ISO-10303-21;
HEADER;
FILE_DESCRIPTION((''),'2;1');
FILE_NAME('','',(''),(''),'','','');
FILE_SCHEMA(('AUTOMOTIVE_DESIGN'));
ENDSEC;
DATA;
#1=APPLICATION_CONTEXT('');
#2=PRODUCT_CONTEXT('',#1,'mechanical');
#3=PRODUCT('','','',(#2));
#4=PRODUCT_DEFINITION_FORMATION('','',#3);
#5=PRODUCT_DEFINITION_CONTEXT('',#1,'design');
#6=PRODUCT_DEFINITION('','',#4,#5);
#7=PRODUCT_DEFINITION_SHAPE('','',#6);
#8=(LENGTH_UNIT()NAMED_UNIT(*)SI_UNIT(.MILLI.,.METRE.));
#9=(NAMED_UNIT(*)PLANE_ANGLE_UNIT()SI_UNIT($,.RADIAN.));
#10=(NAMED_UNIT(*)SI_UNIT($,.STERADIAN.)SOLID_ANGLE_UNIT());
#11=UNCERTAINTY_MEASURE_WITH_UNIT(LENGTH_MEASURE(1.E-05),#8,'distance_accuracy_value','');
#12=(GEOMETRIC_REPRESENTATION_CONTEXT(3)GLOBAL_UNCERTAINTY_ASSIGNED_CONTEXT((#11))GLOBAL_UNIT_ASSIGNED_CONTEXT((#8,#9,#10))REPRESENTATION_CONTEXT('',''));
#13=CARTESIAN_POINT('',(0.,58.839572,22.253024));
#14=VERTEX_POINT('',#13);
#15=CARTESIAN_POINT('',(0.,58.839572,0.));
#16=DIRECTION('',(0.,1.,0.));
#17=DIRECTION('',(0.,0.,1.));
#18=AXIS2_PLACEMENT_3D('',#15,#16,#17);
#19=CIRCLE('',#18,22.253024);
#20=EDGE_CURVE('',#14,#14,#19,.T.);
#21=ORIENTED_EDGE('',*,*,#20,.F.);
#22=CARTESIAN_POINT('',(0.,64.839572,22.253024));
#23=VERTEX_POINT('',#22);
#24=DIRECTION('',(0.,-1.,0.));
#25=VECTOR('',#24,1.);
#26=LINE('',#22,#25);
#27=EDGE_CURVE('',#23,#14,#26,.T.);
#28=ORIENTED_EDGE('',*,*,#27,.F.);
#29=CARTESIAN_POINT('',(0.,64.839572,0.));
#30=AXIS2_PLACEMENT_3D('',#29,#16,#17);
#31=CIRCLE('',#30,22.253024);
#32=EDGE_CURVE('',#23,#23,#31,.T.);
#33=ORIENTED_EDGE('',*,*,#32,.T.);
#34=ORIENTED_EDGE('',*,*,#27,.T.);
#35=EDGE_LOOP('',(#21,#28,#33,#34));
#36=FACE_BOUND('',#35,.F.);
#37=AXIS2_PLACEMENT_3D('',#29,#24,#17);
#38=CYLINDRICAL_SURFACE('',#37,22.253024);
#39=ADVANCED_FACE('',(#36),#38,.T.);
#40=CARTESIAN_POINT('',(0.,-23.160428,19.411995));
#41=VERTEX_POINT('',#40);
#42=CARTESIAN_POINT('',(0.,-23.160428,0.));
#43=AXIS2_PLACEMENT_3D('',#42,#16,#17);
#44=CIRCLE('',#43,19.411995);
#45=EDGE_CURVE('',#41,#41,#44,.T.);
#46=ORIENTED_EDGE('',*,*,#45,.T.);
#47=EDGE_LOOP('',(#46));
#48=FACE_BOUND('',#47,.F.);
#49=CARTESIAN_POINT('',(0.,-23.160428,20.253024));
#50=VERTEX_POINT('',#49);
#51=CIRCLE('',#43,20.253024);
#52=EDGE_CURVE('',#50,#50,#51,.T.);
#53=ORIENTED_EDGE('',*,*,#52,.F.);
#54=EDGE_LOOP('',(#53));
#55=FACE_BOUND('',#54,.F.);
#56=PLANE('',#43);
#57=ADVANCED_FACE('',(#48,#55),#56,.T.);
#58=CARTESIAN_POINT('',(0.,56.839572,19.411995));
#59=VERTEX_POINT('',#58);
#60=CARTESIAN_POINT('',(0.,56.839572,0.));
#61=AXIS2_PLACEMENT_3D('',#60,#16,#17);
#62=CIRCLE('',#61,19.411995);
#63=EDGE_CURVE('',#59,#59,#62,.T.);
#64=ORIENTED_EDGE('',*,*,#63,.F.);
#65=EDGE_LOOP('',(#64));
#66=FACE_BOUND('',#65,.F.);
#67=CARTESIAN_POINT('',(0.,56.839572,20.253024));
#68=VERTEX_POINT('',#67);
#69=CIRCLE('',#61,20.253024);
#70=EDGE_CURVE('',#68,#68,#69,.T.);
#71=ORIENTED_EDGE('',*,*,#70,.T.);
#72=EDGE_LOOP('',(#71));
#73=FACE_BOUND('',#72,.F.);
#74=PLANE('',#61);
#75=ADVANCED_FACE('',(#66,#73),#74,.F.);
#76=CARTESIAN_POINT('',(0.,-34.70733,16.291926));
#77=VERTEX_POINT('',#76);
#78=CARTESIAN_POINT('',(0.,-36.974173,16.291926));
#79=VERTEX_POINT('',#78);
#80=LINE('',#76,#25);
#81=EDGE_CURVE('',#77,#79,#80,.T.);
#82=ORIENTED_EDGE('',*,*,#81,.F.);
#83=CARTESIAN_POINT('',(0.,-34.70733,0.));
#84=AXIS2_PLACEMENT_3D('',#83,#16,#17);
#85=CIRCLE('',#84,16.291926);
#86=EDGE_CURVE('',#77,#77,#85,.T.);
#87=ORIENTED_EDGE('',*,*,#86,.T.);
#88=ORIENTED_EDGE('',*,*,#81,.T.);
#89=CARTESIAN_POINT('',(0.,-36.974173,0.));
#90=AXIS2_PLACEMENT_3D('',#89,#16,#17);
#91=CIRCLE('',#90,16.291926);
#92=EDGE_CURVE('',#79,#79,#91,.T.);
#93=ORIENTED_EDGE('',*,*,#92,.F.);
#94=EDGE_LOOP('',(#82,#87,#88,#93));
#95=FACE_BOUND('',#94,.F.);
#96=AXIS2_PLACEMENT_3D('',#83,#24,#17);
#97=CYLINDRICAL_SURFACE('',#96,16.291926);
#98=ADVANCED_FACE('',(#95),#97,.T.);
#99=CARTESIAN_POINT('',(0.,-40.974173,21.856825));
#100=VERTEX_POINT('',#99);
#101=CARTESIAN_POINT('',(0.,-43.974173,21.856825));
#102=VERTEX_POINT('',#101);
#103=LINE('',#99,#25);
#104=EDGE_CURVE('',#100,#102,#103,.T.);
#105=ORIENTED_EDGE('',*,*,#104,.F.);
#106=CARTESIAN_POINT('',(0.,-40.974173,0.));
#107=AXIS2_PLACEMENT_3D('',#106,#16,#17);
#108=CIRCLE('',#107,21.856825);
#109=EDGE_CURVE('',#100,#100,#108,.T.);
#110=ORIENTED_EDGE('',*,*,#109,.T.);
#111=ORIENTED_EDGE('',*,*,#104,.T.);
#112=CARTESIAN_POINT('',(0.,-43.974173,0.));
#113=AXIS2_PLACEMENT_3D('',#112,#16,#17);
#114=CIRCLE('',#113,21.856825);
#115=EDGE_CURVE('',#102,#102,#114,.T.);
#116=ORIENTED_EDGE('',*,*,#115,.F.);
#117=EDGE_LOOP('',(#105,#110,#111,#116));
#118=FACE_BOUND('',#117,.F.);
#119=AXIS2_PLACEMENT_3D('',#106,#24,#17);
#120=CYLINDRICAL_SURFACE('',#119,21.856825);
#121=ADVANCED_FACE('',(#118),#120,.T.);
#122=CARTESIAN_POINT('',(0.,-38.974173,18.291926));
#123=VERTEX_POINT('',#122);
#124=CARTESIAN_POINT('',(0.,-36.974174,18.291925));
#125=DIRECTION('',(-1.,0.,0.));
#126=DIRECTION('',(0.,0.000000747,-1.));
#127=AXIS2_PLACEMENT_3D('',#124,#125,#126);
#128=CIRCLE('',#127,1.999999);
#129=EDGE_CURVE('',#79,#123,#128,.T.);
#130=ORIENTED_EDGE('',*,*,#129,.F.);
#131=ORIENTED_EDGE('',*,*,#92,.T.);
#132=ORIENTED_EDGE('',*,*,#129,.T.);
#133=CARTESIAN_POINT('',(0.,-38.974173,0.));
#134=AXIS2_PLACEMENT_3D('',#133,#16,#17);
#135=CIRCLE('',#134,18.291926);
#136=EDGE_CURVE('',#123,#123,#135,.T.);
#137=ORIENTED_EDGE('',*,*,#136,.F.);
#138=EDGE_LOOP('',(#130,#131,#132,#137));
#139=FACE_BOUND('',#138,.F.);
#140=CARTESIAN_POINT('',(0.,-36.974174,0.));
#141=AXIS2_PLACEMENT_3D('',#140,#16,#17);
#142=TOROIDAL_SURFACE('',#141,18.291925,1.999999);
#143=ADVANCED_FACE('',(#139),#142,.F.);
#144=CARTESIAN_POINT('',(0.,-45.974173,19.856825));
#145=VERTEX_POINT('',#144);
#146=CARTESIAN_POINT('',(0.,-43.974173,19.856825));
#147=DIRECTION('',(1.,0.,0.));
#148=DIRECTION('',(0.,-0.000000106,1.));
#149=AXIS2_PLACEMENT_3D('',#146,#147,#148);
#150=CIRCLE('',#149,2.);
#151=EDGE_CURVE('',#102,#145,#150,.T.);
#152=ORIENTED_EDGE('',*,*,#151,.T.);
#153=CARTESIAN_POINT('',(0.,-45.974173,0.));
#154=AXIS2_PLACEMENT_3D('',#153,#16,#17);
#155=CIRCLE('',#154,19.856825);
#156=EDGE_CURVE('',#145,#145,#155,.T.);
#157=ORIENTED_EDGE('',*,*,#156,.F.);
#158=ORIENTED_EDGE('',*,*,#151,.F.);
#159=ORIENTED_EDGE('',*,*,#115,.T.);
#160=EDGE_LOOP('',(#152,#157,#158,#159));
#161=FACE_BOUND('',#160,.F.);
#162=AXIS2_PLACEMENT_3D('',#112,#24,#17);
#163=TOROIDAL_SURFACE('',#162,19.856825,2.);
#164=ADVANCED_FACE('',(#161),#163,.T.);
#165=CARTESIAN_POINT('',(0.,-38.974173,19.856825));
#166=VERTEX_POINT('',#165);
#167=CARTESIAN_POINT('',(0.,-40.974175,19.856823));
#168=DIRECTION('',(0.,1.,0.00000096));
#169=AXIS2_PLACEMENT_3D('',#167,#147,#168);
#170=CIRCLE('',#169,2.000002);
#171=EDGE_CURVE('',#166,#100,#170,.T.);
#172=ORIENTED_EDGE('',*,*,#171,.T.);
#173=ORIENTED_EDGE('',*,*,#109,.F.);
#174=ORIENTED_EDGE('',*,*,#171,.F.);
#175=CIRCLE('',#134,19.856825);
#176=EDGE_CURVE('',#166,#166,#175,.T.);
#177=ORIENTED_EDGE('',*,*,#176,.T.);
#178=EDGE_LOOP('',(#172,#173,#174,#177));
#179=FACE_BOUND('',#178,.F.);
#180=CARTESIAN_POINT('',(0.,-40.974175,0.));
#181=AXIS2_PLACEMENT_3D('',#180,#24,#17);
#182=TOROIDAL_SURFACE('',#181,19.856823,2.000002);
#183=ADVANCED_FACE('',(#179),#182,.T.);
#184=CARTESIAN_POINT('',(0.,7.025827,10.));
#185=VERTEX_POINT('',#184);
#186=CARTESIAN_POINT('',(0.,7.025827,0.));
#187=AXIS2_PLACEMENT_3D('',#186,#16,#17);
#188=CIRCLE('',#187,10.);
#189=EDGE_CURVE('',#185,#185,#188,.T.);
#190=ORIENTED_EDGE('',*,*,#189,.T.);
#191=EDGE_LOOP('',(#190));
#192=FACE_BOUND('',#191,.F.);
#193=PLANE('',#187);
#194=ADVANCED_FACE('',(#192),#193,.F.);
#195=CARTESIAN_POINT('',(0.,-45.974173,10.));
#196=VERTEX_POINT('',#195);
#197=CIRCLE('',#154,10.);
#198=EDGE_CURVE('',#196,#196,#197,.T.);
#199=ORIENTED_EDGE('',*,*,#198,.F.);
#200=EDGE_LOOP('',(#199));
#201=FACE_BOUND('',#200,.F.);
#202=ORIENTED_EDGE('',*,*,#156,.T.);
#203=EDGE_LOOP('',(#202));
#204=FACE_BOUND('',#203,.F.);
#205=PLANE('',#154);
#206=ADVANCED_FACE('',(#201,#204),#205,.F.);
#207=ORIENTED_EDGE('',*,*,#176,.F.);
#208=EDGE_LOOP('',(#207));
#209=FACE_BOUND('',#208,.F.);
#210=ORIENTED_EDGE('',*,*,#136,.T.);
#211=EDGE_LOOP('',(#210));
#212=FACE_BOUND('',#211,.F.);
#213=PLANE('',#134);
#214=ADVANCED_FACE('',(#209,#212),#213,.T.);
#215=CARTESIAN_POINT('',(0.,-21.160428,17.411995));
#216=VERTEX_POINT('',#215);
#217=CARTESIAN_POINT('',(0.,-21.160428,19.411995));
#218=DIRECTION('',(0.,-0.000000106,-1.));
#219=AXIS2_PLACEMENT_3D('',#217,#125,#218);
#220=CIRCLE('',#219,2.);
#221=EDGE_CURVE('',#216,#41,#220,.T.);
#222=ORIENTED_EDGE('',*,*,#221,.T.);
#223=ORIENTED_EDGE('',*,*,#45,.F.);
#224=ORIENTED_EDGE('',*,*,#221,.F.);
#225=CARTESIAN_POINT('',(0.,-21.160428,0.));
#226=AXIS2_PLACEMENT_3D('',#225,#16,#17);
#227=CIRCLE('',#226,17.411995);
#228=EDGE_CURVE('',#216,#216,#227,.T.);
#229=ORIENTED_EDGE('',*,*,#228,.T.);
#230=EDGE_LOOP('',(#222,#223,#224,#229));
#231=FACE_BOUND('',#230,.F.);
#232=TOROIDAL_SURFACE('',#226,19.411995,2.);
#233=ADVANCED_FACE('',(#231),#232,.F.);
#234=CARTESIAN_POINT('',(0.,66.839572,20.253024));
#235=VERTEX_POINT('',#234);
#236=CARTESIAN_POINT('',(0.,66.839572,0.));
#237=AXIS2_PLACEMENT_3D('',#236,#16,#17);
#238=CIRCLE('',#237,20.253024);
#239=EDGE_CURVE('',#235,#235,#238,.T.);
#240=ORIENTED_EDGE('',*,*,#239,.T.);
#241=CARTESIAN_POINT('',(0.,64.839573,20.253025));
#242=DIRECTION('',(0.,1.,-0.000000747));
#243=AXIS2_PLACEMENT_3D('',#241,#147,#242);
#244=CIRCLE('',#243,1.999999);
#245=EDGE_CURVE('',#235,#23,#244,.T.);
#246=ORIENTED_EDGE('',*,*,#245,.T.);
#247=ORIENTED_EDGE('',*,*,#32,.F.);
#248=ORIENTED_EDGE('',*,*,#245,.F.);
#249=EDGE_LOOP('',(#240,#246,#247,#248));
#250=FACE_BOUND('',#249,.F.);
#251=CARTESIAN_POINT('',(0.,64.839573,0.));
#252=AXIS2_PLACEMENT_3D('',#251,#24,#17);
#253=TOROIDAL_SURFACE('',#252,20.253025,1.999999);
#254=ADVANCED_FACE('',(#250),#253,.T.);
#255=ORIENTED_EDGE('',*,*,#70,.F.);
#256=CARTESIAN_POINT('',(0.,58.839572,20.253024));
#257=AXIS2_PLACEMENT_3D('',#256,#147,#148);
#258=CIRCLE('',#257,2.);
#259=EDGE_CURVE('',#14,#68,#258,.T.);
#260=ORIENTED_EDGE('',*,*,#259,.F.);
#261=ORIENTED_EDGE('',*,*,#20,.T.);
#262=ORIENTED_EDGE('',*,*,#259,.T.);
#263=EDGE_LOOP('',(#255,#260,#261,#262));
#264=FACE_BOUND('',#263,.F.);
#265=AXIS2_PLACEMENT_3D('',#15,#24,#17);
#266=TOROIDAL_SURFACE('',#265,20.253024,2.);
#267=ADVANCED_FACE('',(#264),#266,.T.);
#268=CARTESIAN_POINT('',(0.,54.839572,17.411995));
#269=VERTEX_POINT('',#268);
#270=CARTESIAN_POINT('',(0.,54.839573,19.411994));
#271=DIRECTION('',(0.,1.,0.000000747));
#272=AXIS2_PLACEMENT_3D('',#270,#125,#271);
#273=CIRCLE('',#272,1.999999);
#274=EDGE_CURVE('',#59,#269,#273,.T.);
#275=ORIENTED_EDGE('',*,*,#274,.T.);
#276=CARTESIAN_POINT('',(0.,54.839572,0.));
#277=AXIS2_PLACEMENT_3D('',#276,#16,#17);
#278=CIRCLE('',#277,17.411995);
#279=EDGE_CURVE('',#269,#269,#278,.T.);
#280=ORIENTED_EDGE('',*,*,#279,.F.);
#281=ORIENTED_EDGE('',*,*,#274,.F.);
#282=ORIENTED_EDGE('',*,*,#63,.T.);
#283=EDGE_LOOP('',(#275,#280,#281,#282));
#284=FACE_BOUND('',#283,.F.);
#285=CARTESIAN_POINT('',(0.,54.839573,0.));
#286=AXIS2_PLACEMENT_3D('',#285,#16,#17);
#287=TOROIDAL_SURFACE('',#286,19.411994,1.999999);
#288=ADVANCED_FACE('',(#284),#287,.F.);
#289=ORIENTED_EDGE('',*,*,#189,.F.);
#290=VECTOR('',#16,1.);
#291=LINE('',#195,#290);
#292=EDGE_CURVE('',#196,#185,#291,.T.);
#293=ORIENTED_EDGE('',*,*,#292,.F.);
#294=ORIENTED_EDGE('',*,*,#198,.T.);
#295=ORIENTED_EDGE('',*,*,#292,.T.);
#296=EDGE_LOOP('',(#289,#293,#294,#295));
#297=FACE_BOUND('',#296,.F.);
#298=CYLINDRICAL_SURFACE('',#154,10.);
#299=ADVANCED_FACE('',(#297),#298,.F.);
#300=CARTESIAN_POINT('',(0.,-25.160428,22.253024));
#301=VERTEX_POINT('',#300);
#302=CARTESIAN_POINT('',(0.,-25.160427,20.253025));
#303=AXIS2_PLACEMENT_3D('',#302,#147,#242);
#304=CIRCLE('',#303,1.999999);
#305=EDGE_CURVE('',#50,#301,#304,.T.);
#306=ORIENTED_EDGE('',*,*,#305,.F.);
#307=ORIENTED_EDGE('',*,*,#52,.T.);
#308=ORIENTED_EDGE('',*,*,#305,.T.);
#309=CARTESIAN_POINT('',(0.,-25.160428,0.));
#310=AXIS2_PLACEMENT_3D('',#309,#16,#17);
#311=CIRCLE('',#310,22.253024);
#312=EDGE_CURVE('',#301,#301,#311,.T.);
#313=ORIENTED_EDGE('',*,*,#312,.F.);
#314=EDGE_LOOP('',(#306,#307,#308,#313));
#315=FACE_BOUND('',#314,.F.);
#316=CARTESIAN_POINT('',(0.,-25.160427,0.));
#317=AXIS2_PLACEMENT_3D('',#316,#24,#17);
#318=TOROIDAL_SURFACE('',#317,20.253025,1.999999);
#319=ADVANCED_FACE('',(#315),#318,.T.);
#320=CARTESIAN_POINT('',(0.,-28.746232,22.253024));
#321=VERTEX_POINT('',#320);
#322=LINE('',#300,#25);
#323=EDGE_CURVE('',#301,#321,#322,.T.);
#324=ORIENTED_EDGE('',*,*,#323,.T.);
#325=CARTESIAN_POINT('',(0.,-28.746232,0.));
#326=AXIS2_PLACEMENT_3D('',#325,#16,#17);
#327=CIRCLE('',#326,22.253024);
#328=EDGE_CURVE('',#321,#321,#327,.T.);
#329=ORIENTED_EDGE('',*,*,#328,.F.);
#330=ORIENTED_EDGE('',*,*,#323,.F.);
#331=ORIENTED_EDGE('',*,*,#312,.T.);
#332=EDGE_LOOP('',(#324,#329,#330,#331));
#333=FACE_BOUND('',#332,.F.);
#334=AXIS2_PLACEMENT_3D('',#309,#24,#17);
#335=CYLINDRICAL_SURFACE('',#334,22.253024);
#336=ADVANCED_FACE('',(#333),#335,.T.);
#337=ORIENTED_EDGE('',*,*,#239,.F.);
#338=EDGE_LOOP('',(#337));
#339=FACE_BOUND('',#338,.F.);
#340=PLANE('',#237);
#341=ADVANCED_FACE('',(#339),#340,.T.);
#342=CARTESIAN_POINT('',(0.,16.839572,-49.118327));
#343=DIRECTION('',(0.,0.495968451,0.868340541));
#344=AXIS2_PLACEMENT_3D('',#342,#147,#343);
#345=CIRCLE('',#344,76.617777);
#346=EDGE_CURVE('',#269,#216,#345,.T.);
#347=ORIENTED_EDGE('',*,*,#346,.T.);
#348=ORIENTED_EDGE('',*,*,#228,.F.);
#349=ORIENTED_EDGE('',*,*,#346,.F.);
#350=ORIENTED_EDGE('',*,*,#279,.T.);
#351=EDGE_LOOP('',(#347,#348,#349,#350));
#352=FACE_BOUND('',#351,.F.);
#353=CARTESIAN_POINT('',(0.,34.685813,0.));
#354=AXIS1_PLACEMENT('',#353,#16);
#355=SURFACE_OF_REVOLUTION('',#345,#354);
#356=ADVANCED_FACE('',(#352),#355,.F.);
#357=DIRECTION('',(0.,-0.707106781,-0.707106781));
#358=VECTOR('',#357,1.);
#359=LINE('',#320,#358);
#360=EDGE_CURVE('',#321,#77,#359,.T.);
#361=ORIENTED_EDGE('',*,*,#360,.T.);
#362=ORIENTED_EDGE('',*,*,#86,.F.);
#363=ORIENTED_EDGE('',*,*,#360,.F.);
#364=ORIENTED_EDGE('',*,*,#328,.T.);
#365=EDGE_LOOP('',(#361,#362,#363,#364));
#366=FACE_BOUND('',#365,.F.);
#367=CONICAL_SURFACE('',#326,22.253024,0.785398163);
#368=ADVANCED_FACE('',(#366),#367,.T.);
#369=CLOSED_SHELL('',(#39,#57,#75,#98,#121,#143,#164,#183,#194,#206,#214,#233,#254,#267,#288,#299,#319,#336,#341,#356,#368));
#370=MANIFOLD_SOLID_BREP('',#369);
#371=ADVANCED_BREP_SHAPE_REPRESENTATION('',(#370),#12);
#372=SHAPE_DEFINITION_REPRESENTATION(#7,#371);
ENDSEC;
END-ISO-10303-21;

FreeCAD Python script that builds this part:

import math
import FreeCAD as App
import Part
import Sketcher
Q = App.Units.Quantity

doc = App.newDocument("Part")
params = doc.addObject("Spreadsheet::Sheet", "Params")
for row, (alias, value) in enumerate([
    ("sketch1_radius", "1.999999 mm"),
    ("sketch1_width", "53 mm"),
    ("sketch1_width2", "6 mm"),
    ("sketch1_width3", "3 mm"),
    ("sketch1_height", "10 mm"),
    ("revolution_angle", "360 deg"),
], start=1):
    params.set(f"A{row}", alias)
    params.set(f"B{row}", "=" + value)
    params.setAlias(f"B{row}", alias)

body = doc.addObject("PartDesign::Body", "Body")

# Sketch on YZ plane
sketch1 = doc.addObject("Sketcher::SketchObject", "Sketch")
body.addObject(sketch1)
sketch1.AttachmentSupport = (doc.YZ_Plane, [""])
sketch1.MapMode = "FlatFace"
sketch1.addGeometry([
    Part.LineSegment(App.Vector(-46, 19.9, 0), App.Vector(-46, 10, 0)),  # 0
    Part.LineSegment(App.Vector(-46, 10, 0), App.Vector(7, 10, 0)),  # 1
    Part.LineSegment(App.Vector(7, 10, 0), App.Vector(7, 0, 0)),  # 2
    Part.LineSegment(App.Vector(7, 0, 0), App.Vector(66.8, 0, 0)),  # 3
    Part.LineSegment(App.Vector(66.8, 0, 0), App.Vector(66.8, 20.3, 0)),  # 4
    Part.ArcOfCircle(Part.Circle(App.Vector(64.8, 20.3, 0), App.Vector(0, 0, 1), 2), math.radians(0), math.radians(90)),  # 5
    Part.LineSegment(App.Vector(64.8, 22.3, 0), App.Vector(58.8, 22.3, 0)),  # 6
    Part.ArcOfCircle(Part.Circle(App.Vector(58.8, 20.3, 0), App.Vector(0, 0, 1), 2), math.radians(90), math.radians(180)),  # 7
    Part.LineSegment(App.Vector(56.8, 20.3, 0), App.Vector(56.8, 19.4, 0)),  # 8
    Part.ArcOfCircle(Part.Circle(App.Vector(54.8, 19.4, 0), App.Vector(0, 0, 1), 2), math.radians(-90), math.radians(0)),  # 9
    Part.ArcOfCircle(Part.Circle(App.Vector(16.8, -49.1, 0), App.Vector(0, 0, 1), 76.6), math.radians(60), math.radians(120)),  # 10
    Part.ArcOfCircle(Part.Circle(App.Vector(-21.2, 19.4, 0), App.Vector(0, 0, 1), 2), math.radians(-180), math.radians(-90)),  # 11
    Part.LineSegment(App.Vector(-23.2, 19.4, 0), App.Vector(-23.2, 20.3, 0)),  # 12
    Part.ArcOfCircle(Part.Circle(App.Vector(-25.2, 20.3, 0), App.Vector(0, 0, 1), 2), math.radians(0), math.radians(90)),  # 13
    Part.LineSegment(App.Vector(-25.2, 22.3, 0), App.Vector(-28.7, 22.3, 0)),  # 14
    Part.LineSegment(App.Vector(-28.7, 22.3, 0), App.Vector(-34.7, 16.3, 0)),  # 15
    Part.LineSegment(App.Vector(-34.7, 16.3, 0), App.Vector(-37, 16.3, 0)),  # 16
    Part.ArcOfCircle(Part.Circle(App.Vector(-37, 18.3, 0), App.Vector(0, 0, 1), 2), math.radians(180), math.radians(270)),  # 17
    Part.LineSegment(App.Vector(-39, 18.3, 0), App.Vector(-39, 19.9, 0)),  # 18
    Part.ArcOfCircle(Part.Circle(App.Vector(-41, 19.9, 0), App.Vector(0, 0, 1), 2), math.radians(0), math.radians(90)),  # 19
    Part.LineSegment(App.Vector(-41, 21.9, 0), App.Vector(-44, 21.9, 0)),  # 20
    Part.ArcOfCircle(Part.Circle(App.Vector(-44, 19.9, 0), App.Vector(0, 0, 1), 2), math.radians(90), math.radians(180)),  # 21
], False)
sketch1.addConstraint([
    Sketcher.Constraint("Coincident", 0, 2, 1, 1),
    Sketcher.Constraint("Coincident", 1, 2, 2, 1),
    Sketcher.Constraint("Coincident", 2, 2, 3, 1),
    Sketcher.Constraint("Coincident", 3, 2, 4, 1),
    Sketcher.Constraint("Tangent", 4, 2, 5, 1),
    Sketcher.Constraint("Tangent", 5, 2, 6, 1),
    Sketcher.Constraint("Tangent", 6, 2, 7, 1),
    Sketcher.Constraint("Tangent", 7, 2, 8, 1),
    Sketcher.Constraint("Tangent", 8, 2, 9, 2),
    Sketcher.Constraint("Coincident", 9, 1, 10, 1),
    Sketcher.Constraint("Coincident", 10, 2, 11, 2),
    Sketcher.Constraint("Tangent", 11, 1, 12, 1),
    Sketcher.Constraint("Tangent", 12, 2, 13, 1),
    Sketcher.Constraint("Tangent", 13, 2, 14, 1),
    Sketcher.Constraint("Coincident", 14, 2, 15, 1),
    Sketcher.Constraint("Coincident", 15, 2, 16, 1),
    Sketcher.Constraint("Tangent", 16, 2, 17, 2),
    Sketcher.Constraint("Tangent", 17, 1, 18, 1),
    Sketcher.Constraint("Tangent", 18, 2, 19, 1),
    Sketcher.Constraint("Tangent", 19, 2, 20, 1),
    Sketcher.Constraint("Tangent", 20, 2, 21, 1),
    Sketcher.Constraint("Tangent", 21, 2, 0, 1),
    Sketcher.Constraint("Vertical", 0),
    Sketcher.Constraint("Horizontal", 1),
    Sketcher.Constraint("Vertical", 2),
    Sketcher.Constraint("Horizontal", 3),
    Sketcher.Constraint("Vertical", 4),
    Sketcher.Constraint("Horizontal", 6),
    Sketcher.Constraint("Vertical", 8),
    Sketcher.Constraint("Vertical", 12),
    Sketcher.Constraint("Horizontal", 14),
    Sketcher.Constraint("Horizontal", 16),
    Sketcher.Constraint("Vertical", 18),
    Sketcher.Constraint("Horizontal", 20),
    Sketcher.Constraint("Equal", 5, 7),
    Sketcher.Constraint("Equal", 7, 9),
    Sketcher.Constraint("Equal", 9, 11),
    Sketcher.Constraint("Equal", 11, 13),
    Sketcher.Constraint("Equal", 13, 17),
    Sketcher.Constraint("Equal", 11, 19),
    Sketcher.Constraint("Equal", 19, 21),
    Sketcher.Constraint("PointOnObject", 2, 2, -1),
    Sketcher.Constraint("Horizontal", 9, 3, 11, 3),
    Sketcher.Constraint("Horizontal", 7, 3, 13, 3),
    Sketcher.Constraint("Vertical", 11, 3, 10, 2),
    Sketcher.Constraint("Radius", 5, 1.999999),
    Sketcher.Constraint("DistanceX", 1, 1, 1, 2, 53.0),
    Sketcher.Constraint("DistanceX", 6, 2, 6, 1, 6.0),
    Sketcher.Constraint("DistanceX", 20, 2, 20, 1, 3.0),
    Sketcher.Constraint("DistanceY", 2, 2, 2, 1, 10.0),
    Sketcher.Constraint("Angle", 15, Q("-135 deg")),
    Sketcher.Constraint("DistanceX", 10, 3, 9, 3, 38.000001),
    Sketcher.Constraint("DistanceX", 11, 3, 9, 3, 76.000001),
    Sketcher.Constraint("DistanceY", 18, 1, 18, 2, 1.564899),
    Sketcher.Constraint("Radius", 10, 76.617777),
    Sketcher.Constraint("DistanceY", 8, 2, 8, 1, 0.841029),
    Sketcher.Constraint("DistanceY", 17, 3, 13, 3, 1.961101),
    Sketcher.Constraint("DistanceX", 3, 1, 3, 2, 59.813745),
    Sketcher.Constraint("DistanceX", 14, 2, 14, 1, 3.585804),
    Sketcher.Constraint("DistanceY", 0, 2, 0, 1, 9.856825),
    Sketcher.Constraint("DistanceX", -1, 1, 6, 2, 58.839572),
])
sketch1.setExpression("Constraints[45]", "Params.sketch1_radius")
sketch1.setExpression("Constraints[46]", "Params.sketch1_width")
sketch1.setExpression("Constraints[47]", "Params.sketch1_width2")
sketch1.setExpression("Constraints[48]", "Params.sketch1_width3")
sketch1.setExpression("Constraints[49]", "Params.sketch1_height")
revolution = doc.addObject("PartDesign::Revolution", "Revolution")
body.addObject(revolution)
revolution.Profile = sketch1
revolution.ReferenceAxis = (sketch1, ["H_Axis"])
revolution.setExpression("Angle", "Params.revolution_angle")

doc.recompute()
